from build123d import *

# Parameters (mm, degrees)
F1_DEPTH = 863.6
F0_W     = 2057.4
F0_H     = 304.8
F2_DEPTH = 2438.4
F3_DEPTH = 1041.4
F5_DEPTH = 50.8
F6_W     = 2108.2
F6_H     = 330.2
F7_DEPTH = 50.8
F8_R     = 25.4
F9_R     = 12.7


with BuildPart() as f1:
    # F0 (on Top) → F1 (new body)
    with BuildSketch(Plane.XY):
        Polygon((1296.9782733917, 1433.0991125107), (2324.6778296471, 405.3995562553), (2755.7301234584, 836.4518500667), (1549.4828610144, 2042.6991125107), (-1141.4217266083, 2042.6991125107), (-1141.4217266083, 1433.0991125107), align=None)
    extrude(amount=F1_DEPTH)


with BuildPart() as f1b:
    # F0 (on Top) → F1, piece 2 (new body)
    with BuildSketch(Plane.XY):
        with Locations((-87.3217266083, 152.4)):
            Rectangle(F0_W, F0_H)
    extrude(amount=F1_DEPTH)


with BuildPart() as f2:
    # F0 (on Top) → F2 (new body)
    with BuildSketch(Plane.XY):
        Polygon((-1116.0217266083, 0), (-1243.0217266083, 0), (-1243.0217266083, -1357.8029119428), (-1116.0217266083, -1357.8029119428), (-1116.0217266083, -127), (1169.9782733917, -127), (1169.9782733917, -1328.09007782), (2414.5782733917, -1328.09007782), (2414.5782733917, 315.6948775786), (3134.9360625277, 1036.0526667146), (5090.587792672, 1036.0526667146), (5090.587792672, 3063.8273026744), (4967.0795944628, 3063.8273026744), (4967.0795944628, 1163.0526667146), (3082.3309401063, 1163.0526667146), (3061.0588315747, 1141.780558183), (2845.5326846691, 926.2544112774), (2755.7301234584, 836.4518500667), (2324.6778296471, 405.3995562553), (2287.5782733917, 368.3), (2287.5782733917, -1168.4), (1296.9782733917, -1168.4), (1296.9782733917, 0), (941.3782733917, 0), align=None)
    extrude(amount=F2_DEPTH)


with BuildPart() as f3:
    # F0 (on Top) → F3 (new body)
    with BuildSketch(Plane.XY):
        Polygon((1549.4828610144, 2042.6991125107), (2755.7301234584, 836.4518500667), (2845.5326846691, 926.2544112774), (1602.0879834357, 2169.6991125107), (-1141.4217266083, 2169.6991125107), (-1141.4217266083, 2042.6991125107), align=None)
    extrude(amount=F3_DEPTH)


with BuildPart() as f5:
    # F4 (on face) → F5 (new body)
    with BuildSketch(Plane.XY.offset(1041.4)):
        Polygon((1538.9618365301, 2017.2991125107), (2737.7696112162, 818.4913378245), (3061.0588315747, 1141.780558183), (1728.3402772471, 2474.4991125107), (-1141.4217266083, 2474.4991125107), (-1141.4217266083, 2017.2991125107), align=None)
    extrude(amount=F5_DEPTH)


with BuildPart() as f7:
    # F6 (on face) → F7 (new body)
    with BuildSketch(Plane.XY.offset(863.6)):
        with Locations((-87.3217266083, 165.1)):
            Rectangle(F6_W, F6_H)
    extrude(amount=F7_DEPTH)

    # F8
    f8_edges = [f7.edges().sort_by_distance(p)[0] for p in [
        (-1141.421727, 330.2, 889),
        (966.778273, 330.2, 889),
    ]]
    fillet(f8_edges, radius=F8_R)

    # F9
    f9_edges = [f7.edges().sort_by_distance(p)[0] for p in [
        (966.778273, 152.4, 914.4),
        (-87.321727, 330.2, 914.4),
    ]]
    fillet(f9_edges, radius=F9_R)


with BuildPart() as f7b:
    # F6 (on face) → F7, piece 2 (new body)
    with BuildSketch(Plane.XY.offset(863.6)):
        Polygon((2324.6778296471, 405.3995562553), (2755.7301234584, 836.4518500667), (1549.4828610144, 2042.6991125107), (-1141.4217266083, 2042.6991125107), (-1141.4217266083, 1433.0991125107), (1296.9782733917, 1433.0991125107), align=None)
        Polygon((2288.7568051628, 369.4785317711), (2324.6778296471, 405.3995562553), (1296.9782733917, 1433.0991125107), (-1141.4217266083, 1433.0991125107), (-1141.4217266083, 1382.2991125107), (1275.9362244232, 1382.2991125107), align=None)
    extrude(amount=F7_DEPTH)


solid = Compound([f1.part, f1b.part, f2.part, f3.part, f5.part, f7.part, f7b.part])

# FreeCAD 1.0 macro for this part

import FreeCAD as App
import Part
import Sketcher
from FreeCAD import Vector
Q = App.Units.Quantity


def edges_at(feature, points):
    """Names of the edges that pass closest to the given points."""
    edges = feature.Shape.Edges
    near = lambda p: min(range(len(edges)), key=lambda i: edges[i].distToShape(Part.Vertex(*p))[0])
    return sorted({f"Edge{near(p) + 1}" for p in points})

doc = App.newDocument("Part")
body = doc.addObject("PartDesign::Body", "Body")

# Sketch on XY plane
sketch1 = body.newObject("Sketcher::SketchObject", "Sketch")
sketch1.AttachmentSupport = (doc.getObject("XY_Plane"), [""])
sketch1.MapMode = "FlatFace"
sketch1.addGeometry([
    Part.LineSegment(Vector(1297, 1433, 0), Vector(2325, 405, 0)),  # 0
    Part.LineSegment(Vector(2325, 405, 0), Vector(2756, 836, 0)),  # 1
    Part.LineSegment(Vector(2756, 836, 0), Vector(1549, 2043, 0)),  # 2
    Part.LineSegment(Vector(1549, 2043, 0), Vector(-1141, 2043, 0)),  # 3
    Part.LineSegment(Vector(-1141, 2043, 0), Vector(-1141, 1433, 0)),  # 4
    Part.LineSegment(Vector(-1141, 1433, 0), Vector(1297, 1433, 0)),  # 5
], False)
sketch1.addConstraint([
    Sketcher.Constraint("Coincident", 0, 2, 1, 1),
    Sketcher.Constraint("Coincident", 1, 2, 2, 1),
    Sketcher.Constraint("Coincident", 2, 2, 3, 1),
    Sketcher.Constraint("Coincident", 3, 2, 4, 1),
    Sketcher.Constraint("Coincident", 4, 2, 5, 1),
    Sketcher.Constraint("Coincident", 5, 2, 0, 1),
    Sketcher.Constraint("Horizontal", 3),
    Sketcher.Constraint("Vertical", 4),
    Sketcher.Constraint("Horizontal", 5),
    Sketcher.Constraint("Perpendicular", 0, 1),
    Sketcher.Constraint("Perpendicular", 1, 2),
    Sketcher.Constraint("DistanceX", 5, 1, 5, 2, Q("96 in")),
    Sketcher.Constraint("DistanceY", 4, 2, 4, 1, Q("24 in")),
    Sketcher.Constraint("Distance", 1, Q("24 in")),
    Sketcher.Constraint("Angle", 0, Q("-45 deg")),
    Sketcher.Constraint("Distance", 0, 1453.386651),
    Sketcher.Constraint("DistanceX", -1, 1, 0, 2, 2324.67783),
    Sketcher.Constraint("DistanceY", -1, 1, 1, 2, 836.45185),
])
pad1 = body.newObject("PartDesign::Pad", "Pad")
pad1.Profile = sketch1
pad1.Length = Q("34 in")
body2 = doc.addObject("PartDesign::Body", "Body001")

# Sketch on XY plane
sketch2 = body2.newObject("Sketcher::SketchObject", "Sketch001")
sketch2.AttachmentSupport = (doc.getObject("XY_Plane001"), [""])
sketch2.MapMode = "FlatFace"
sketch2.addGeometry([
    Part.LineSegment(Vector(-1116, 305, 0), Vector(-1116, 0, 0)),
    Part.LineSegment(Vector(-1116, 0, 0), Vector(941, 0, 0)),
    Part.LineSegment(Vector(941, 0, 0), Vector(941, 305, 0)),
    Part.LineSegment(Vector(941, 305, 0), Vector(-1116, 305, 0)),
], False)
sketch2.addConstraint([
    Sketcher.Constraint("Coincident", 0, 2, 1, 1),
    Sketcher.Constraint("Coincident", 1, 2, 2, 1),
    Sketcher.Constraint("Coincident", 2, 2, 3, 1),
    Sketcher.Constraint("Coincident", 3, 2, 0, 1),
    Sketcher.Constraint("Vertical", 0),
    Sketcher.Constraint("Horizontal", 1),
    Sketcher.Constraint("Vertical", 2),
    Sketcher.Constraint("Horizontal", 3),
    Sketcher.Constraint("PointOnObject", 0, 2, -1),
    Sketcher.Constraint("DistanceX", 1, 1, 1, 2, Q("81 in")),
    Sketcher.Constraint("DistanceY", 0, 2, 0, 1, Q("12 in")),
    Sketcher.Constraint("DistanceX", 0, 2, -1, 1, 1116.021727),
])
pad2 = body2.newObject("PartDesign::Pad", "Pad001")
pad2.Profile = sketch2
pad2.Length = Q("34 in")
body3 = doc.addObject("PartDesign::Body", "Body002")

# Sketch on XY plane
sketch3 = body3.newObject("Sketcher::SketchObject", "Sketch002")
sketch3.AttachmentSupport = (doc.getObject("XY_Plane002"), [""])
sketch3.MapMode = "FlatFace"
sketch3.addGeometry([
    Part.LineSegment(Vector(-1243, 0, 0), Vector(-1243, -1358, 0)),  # 0
    Part.LineSegment(Vector(-1243, -1358, 0), Vector(-1116, -1358, 0)),  # 1
    Part.LineSegment(Vector(-1116, -1358, 0), Vector(-1116, -127, 0)),  # 2
    Part.LineSegment(Vector(-1116, -127, 0), Vector(1170, -127, 0)),  # 3
    Part.LineSegment(Vector(1170, -127, 0), Vector(1170, -1328, 0)),  # 4
    Part.LineSegment(Vector(1170, -1328, 0), Vector(2415, -1328, 0)),  # 5
    Part.LineSegment(Vector(2415, -1328, 0), Vector(2415, 316, 0)),  # 6
    Part.LineSegment(Vector(2415, 316, 0), Vector(3135, 1036, 0)),  # 7
    Part.LineSegment(Vector(3135, 1036, 0), Vector(5091, 1036, 0)),  # 8
    Part.LineSegment(Vector(5091, 1036, 0), Vector(5091, 3064, 0)),  # 9
    Part.LineSegment(Vector(5091, 3064, 0), Vector(4967, 3064, 0)),  # 10
    Part.LineSegment(Vector(4967, 3064, 0), Vector(4967, 1163, 0)),  # 11
    Part.LineSegment(Vector(4967, 1163, 0), Vector(3082, 1163, 0)),  # 12
    Part.LineSegment(Vector(3082, 1163, 0), Vector(2325, 405, 0)),  # 13
    Part.LineSegment(Vector(2325, 405, 0), Vector(2288, 368, 0)),  # 14
    Part.LineSegment(Vector(2288, 368, 0), Vector(2288, -1168, 0)),  # 15
    Part.LineSegment(Vector(2288, -1168, 0), Vector(1297, -1168, 0)),  # 16
    Part.LineSegment(Vector(1297, -1168, 0), Vector(1297, 0, 0)),  # 17
    Part.LineSegment(Vector(1297, 0, 0), Vector(-1243, 0, 0)),  # 18
], False)
sketch3.addConstraint([
    Sketcher.Constraint("Coincident", 0, 2, 1, 1),
    Sketcher.Constraint("Coincident", 1, 2, 2, 1),
    Sketcher.Constraint("Coincident", 2, 2, 3, 1),
    Sketcher.Constraint("Coincident", 3, 2, 4, 1),
    Sketcher.Constraint("Coincident", 4, 2, 5, 1),
    Sketcher.Constraint("Coincident", 5, 2, 6, 1),
    Sketcher.Constraint("Coincident", 6, 2, 7, 1),
    Sketcher.Constraint("Coincident", 7, 2, 8, 1),
    Sketcher.Constraint("Coincident", 8, 2, 9, 1),
    Sketcher.Constraint("Coincident", 9, 2, 10, 1),
    Sketcher.Constraint("Coincident", 10, 2, 11, 1),
    Sketcher.Constraint("Coincident", 11, 2, 12, 1),
    Sketcher.Constraint("Coincident", 12, 2, 13, 1),
    Sketcher.Constraint("Coincident", 13, 2, 14, 1),
    Sketcher.Constraint("Coincident", 14, 2, 15, 1),
    Sketcher.Constraint("Coincident", 15, 2, 16, 1),
    Sketcher.Constraint("Coincident", 16, 2, 17, 1),
    Sketcher.Constraint("Coincident", 17, 2, 18, 1),
    Sketcher.Constraint("Coincident", 18, 2, 0, 1),
    Sketcher.Constraint("Vertical", 0),
    Sketcher.Constraint("Horizontal", 1),
    Sketcher.Constraint("Vertical", 2),
    Sketcher.Constraint("Horizontal", 3),
    Sketcher.Constraint("Vertical", 4),
    Sketcher.Constraint("Horizontal", 5),
    Sketcher.Constraint("Vertical", 6),
    Sketcher.Constraint("Horizontal", 8),
    Sketcher.Constraint("Vertical", 9),
    Sketcher.Constraint("Horizontal", 10),
    Sketcher.Constraint("Vertical", 11),
    Sketcher.Constraint("Horizontal", 12),
    Sketcher.Constraint("Vertical", 15),
    Sketcher.Constraint("Horizontal", 16),
    Sketcher.Constraint("Vertical", 17),
    Sketcher.Constraint("Horizontal", 18),
    Sketcher.Constraint("PointOnObject", 17, 2, -1),
    Sketcher.Constraint("Parallel", 7, 13),
    Sketcher.Constraint("Parallel", 13, 14),
    Sketcher.Constraint("DistanceX", 1, 1, 1, 2, Q("5 in")),
    Sketcher.Constraint("DistanceX", 3, 1, 3, 2, Q("90 in")),
    Sketcher.Constraint("DistanceX", 5, 1, 5, 2, Q("49 in")),
    Sketcher.Constraint("DistanceX", 16, 2, 16, 1, Q("39 in")),
    Sketcher.Constraint("DistanceX", 18, 2, 18, 1, Q("100 in")),
    Sketcher.Constraint("DistanceY", 17, 1, 17, 2, Q("46 in")),
    Sketcher.Constraint("DistanceY", 15, 2, 15, 1, Q("60.5 in")),
    Sketcher.Constraint("DistanceY", 2, 2, -1, 1, Q("5 in")),
    Sketcher.Constraint("Angle", 7, Q("45 deg")),
    Sketcher.Constraint("DistanceY", 8, 2, 11, 2, Q("5 in")),
    Sketcher.Constraint("DistanceX", 10, 2, 10, 1, 123.508198),
    Sketcher.Constraint("DistanceX", 8, 1, 8, 2, 1955.65173),
    Sketcher.Constraint("DistanceY", 0, 2, 0, 1, 1357.802912),
    Sketcher.Constraint("DistanceX", 12, 2, 12, 1, 1884.748654),
    Sketcher.Constraint("DistanceY", 4, 2, 4, 1, 1201.090078),
    Sketcher.Constraint("DistanceY", 9, 1, 9, 2, 2027.774636),
    Sketcher.Constraint("DistanceX", -1, 1, 12, 2, 3082.33094),
    Sketcher.Constraint("DistanceX", -1, 1, 13, 2, 2324.67783),
    Sketcher.Constraint("DistanceX", 6, 2, 7, 2, 720.357789),
])
pad3 = body3.newObject("PartDesign::Pad", "Pad002")
pad3.Profile = sketch3
pad3.Length = Q("96 in")
body4 = doc.addObject("PartDesign::Body", "Body003")

# Sketch on XY plane
sketch4 = body4.newObject("Sketcher::SketchObject", "Sketch003")
sketch4.AttachmentSupport = (doc.getObject("XY_Plane003"), [""])
sketch4.MapMode = "FlatFace"
sketch4.addGeometry([
    Part.LineSegment(Vector(1549, 2043, 0), Vector(2756, 836, 0)),  # 0
    Part.LineSegment(Vector(2756, 836, 0), Vector(2846, 926, 0)),  # 1
    Part.LineSegment(Vector(2846, 926, 0), Vector(1602, 2170, 0)),  # 2
    Part.LineSegment(Vector(1602, 2170, 0), Vector(-1141, 2170, 0)),  # 3
    Part.LineSegment(Vector(-1141, 2170, 0), Vector(-1141, 2043, 0)),  # 4
    Part.LineSegment(Vector(-1141, 2043, 0), Vector(1549, 2043, 0)),  # 5
], False)
sketch4.addConstraint([
    Sketcher.Constraint("Coincident", 0, 2, 1, 1),
    Sketcher.Constraint("Coincident", 1, 2, 2, 1),
    Sketcher.Constraint("Coincident", 2, 2, 3, 1),
    Sketcher.Constraint("Coincident", 3, 2, 4, 1),
    Sketcher.Constraint("Coincident", 4, 2, 5, 1),
    Sketcher.Constraint("Coincident", 5, 2, 0, 1),
    Sketcher.Constraint("Horizontal", 3),
    Sketcher.Constraint("Vertical", 4),
    Sketcher.Constraint("Horizontal", 5),
    Sketcher.Constraint("Perpendicular", 0, 1),
    Sketcher.Constraint("Perpendicular", 1, 2),
    Sketcher.Constraint("DistanceY", 4, 2, 4, 1, Q("5 in")),
    Sketcher.Constraint("Distance", 1, Q("5 in")),
    Sketcher.Constraint("Angle", 0, Q("-45 deg")),
    Sketcher.Constraint("DistanceX", 3, 2, 3, 1, 2743.50971),
    Sketcher.Constraint("DistanceX", 2, 2, 1, 2, 1243.444701),
    Sketcher.Constraint("DistanceY", -1, 1, 0, 2, 836.45185),
    Sketcher.Constraint("DistanceX", -1, 1, 5, 2, 1549.482861),
])
pad4 = body4.newObject("PartDesign::Pad", "Pad003")
pad4.Profile = sketch4
pad4.Length = Q("41 in")
body5 = doc.addObject("PartDesign::Body", "Body004")

# Sketch on XY plane
sketch5 = body5.newObject("Sketcher::SketchObject", "Sketch004")
sketch5.AttachmentSupport = (doc.getObject("XY_Plane004"), [""])
sketch5.MapMode = "FlatFace"
sketch5.AttachmentOffset = App.Placement(Vector(0, 0, 41 * 25.4), App.Rotation())
sketch5.addGeometry([
    Part.LineSegment(Vector(1539, 2017, 0), Vector(2738, 818, 0)),  # 0
    Part.LineSegment(Vector(2738, 818, 0), Vector(3061, 1142, 0)),  # 1
    Part.LineSegment(Vector(3061, 1142, 0), Vector(1728, 2474, 0)),  # 2
    Part.LineSegment(Vector(1728, 2474, 0), Vector(-1141, 2474, 0)),  # 3
    Part.LineSegment(Vector(-1141, 2474, 0), Vector(-1141, 2017, 0)),  # 4
    Part.LineSegment(Vector(-1141, 2017, 0), Vector(1539, 2017, 0)),  # 5
], False)
sketch5.addConstraint([
    Sketcher.Constraint("Coincident", 0, 2, 1, 1),
    Sketcher.Constraint("Coincident", 1, 2, 2, 1),
    Sketcher.Constraint("Coincident", 2, 2, 3, 1),
    Sketcher.Constraint("Coincident", 3, 2, 4, 1),
    Sketcher.Constraint("Coincident", 4, 2, 5, 1),
    Sketcher.Constraint("Coincident", 5, 2, 0, 1),
    Sketcher.Constraint("Horizontal", 3),
    Sketcher.Constraint("Vertical", 4),
    Sketcher.Constraint("Horizontal", 5),
    Sketcher.Constraint("Perpendicular", 0, 1),
    Sketcher.Constraint("Perpendicular", 1, 2),
    Sketcher.Constraint("DistanceY", 4, 2, 4, 1, Q("18 in")),
    Sketcher.Constraint("Distance", 1, Q("18 in")),
    Sketcher.Constraint("Angle", 0, Q("-45 deg")),
    Sketcher.Constraint("DistanceX", 3, 2, 3, 1, 2869.762004),
    Sketcher.Constraint("DistanceX", -1, 1, 0, 2, 2737.769611),
    Sketcher.Constraint("DistanceY", -1, 1, 1, 2, 1141.780558),
    Sketcher.Constraint("DistanceX", 3, 2, 1, 2, 4202.480558),
])
pad5 = body5.newObject("PartDesign::Pad", "Pad004")
pad5.Profile = sketch5
pad5.Length = Q("2 in")
body6 = doc.addObject("PartDesign::Body", "Body005")

# Sketch on XY plane
sketch6 = body6.newObject("Sketcher::SketchObject", "Sketch005")
sketch6.AttachmentSupport = (doc.getObject("XY_Plane005"), [""])
sketch6.MapMode = "FlatFace"
sketch6.AttachmentOffset = App.Placement(Vector(0, 0, 34 * 25.4), App.Rotation())
sketch6.addGeometry([
    Part.LineSegment(Vector(-1141, 330, 0), Vector(-1141, 0, 0)),
    Part.LineSegment(Vector(-1141, 0, 0), Vector(967, 0, 0)),
    Part.LineSegment(Vector(967, 0, 0), Vector(967, 330, 0)),
    Part.LineSegment(Vector(967, 330, 0), Vector(-1141, 330, 0)),
], False)
sketch6.addConstraint([
    Sketcher.Constraint("Coincident", 0, 2, 1, 1),
    Sketcher.Constraint("Coincident", 1, 2, 2, 1),
    Sketcher.Constraint("Coincident", 2, 2, 3, 1),
    Sketcher.Constraint("Coincident", 3, 2, 0, 1),
    Sketcher.Constraint("Vertical", 0),
    Sketcher.Constraint("Horizontal", 1),
    Sketcher.Constraint("Vertical", 2),
    Sketcher.Constraint("Horizontal", 3),
    Sketcher.Constraint("PointOnObject", 0, 2, -1),
    Sketcher.Constraint("DistanceX", 1, 1, 1, 2, Q("83 in")),
    Sketcher.Constraint("DistanceY", 0, 2, 0, 1, Q("13 in")),
    Sketcher.Constraint("DistanceX", 0, 2, -1, 1, 1141.421727),
])
pad6 = body6.newObject("PartDesign::Pad", "Pad005")
pad6.Profile = sketch6
pad6.Length = Q("2 in")
doc.recompute()

fillet = body6.newObject("PartDesign::Fillet", "Fillet")
fillet.Base = (pad6, edges_at(pad6, [(-1141.422, 330.2, 889), (966.778, 330.2, 889)]))
fillet.Radius = Q("1 in")
doc.recompute()

fillet2 = body6.newObject("PartDesign::Fillet", "Fillet001")
fillet2.Base = (fillet, edges_at(fillet, [(966.778, 152.4, 914.4), (-87.322, 330.2, 914.4)]))
fillet2.Radius = Q("0.5 in")
body7 = doc.addObject("PartDesign::Body", "Body006")

# Sketch on XY plane
sketch7 = body7.newObject("Sketcher::SketchObject", "Sketch006")
sketch7.AttachmentSupport = (doc.getObject("XY_Plane006"), [""])
sketch7.MapMode = "FlatFace"
sketch7.AttachmentOffset = App.Placement(Vector(0, 0, 34 * 25.4), App.Rotation())
sketch7.addGeometry([
    Part.LineSegment(Vector(2325, 405, 0), Vector(2756, 836, 0)),  # 0
    Part.LineSegment(Vector(2756, 836, 0), Vector(1549, 2043, 0)),  # 1
    Part.LineSegment(Vector(1549, 2043, 0), Vector(-1141, 2043, 0)),  # 2
    Part.LineSegment(Vector(-1141, 2043, 0), Vector(-1141, 1382, 0)),  # 3
    Part.LineSegment(Vector(-1141, 1382, 0), Vector(1276, 1382, 0)),  # 4
    Part.LineSegment(Vector(1276, 1382, 0), Vector(2289, 369, 0)),  # 5
    Part.LineSegment(Vector(2289, 369, 0), Vector(2325, 405, 0)),  # 6
], False)
sketch7.addConstraint([
    Sketcher.Constraint("Coincident", 0, 2, 1, 1),
    Sketcher.Constraint("Coincident", 1, 2, 2, 1),
    Sketcher.Constraint("Coincident", 2, 2, 3, 1),
    Sketcher.Constraint("Coincident", 3, 2, 4, 1),
    Sketcher.Constraint("Coincident", 4, 2, 5, 1),
    Sketcher.Constraint("Coincident", 5, 2, 6, 1),
    Sketcher.Constraint("Coincident", 6, 2, 0, 1),
    Sketcher.Constraint("Horizontal", 2),
    Sketcher.Constraint("Vertical", 3),
    Sketcher.Constraint("Horizontal", 4),
    Sketcher.Constraint("Perpendicular", 0, 1),
    Sketcher.Constraint("Parallel", 1, 5),
    Sketcher.Constraint("Perpendicular", 5, 6),
    Sketcher.Constraint("DistanceY", 3, 2, 3, 1, Q("26 in")),
    Sketcher.Constraint("Distance", 0, Q("24 in")),
    Sketcher.Constraint("Distance", 6, Q("2 in")),
    Sketcher.Constraint("Angle", 0, Q("45 deg")),
    Sketcher.Constraint("Distance", 5, 1432.344602),
    Sketcher.Constraint("DistanceX", 4, 1, 4, 2, 2417.357951),
    Sketcher.Constraint("DistanceY", -1, 1, 0, 2, 836.45185),
    Sketcher.Constraint("DistanceX", -1, 1, 1, 2, 1549.482861),
])
pad7 = body7.newObject("PartDesign::Pad", "Pad006")
pad7.Profile = sketch7
pad7.Length = Q("2 in")

doc.recompute()
